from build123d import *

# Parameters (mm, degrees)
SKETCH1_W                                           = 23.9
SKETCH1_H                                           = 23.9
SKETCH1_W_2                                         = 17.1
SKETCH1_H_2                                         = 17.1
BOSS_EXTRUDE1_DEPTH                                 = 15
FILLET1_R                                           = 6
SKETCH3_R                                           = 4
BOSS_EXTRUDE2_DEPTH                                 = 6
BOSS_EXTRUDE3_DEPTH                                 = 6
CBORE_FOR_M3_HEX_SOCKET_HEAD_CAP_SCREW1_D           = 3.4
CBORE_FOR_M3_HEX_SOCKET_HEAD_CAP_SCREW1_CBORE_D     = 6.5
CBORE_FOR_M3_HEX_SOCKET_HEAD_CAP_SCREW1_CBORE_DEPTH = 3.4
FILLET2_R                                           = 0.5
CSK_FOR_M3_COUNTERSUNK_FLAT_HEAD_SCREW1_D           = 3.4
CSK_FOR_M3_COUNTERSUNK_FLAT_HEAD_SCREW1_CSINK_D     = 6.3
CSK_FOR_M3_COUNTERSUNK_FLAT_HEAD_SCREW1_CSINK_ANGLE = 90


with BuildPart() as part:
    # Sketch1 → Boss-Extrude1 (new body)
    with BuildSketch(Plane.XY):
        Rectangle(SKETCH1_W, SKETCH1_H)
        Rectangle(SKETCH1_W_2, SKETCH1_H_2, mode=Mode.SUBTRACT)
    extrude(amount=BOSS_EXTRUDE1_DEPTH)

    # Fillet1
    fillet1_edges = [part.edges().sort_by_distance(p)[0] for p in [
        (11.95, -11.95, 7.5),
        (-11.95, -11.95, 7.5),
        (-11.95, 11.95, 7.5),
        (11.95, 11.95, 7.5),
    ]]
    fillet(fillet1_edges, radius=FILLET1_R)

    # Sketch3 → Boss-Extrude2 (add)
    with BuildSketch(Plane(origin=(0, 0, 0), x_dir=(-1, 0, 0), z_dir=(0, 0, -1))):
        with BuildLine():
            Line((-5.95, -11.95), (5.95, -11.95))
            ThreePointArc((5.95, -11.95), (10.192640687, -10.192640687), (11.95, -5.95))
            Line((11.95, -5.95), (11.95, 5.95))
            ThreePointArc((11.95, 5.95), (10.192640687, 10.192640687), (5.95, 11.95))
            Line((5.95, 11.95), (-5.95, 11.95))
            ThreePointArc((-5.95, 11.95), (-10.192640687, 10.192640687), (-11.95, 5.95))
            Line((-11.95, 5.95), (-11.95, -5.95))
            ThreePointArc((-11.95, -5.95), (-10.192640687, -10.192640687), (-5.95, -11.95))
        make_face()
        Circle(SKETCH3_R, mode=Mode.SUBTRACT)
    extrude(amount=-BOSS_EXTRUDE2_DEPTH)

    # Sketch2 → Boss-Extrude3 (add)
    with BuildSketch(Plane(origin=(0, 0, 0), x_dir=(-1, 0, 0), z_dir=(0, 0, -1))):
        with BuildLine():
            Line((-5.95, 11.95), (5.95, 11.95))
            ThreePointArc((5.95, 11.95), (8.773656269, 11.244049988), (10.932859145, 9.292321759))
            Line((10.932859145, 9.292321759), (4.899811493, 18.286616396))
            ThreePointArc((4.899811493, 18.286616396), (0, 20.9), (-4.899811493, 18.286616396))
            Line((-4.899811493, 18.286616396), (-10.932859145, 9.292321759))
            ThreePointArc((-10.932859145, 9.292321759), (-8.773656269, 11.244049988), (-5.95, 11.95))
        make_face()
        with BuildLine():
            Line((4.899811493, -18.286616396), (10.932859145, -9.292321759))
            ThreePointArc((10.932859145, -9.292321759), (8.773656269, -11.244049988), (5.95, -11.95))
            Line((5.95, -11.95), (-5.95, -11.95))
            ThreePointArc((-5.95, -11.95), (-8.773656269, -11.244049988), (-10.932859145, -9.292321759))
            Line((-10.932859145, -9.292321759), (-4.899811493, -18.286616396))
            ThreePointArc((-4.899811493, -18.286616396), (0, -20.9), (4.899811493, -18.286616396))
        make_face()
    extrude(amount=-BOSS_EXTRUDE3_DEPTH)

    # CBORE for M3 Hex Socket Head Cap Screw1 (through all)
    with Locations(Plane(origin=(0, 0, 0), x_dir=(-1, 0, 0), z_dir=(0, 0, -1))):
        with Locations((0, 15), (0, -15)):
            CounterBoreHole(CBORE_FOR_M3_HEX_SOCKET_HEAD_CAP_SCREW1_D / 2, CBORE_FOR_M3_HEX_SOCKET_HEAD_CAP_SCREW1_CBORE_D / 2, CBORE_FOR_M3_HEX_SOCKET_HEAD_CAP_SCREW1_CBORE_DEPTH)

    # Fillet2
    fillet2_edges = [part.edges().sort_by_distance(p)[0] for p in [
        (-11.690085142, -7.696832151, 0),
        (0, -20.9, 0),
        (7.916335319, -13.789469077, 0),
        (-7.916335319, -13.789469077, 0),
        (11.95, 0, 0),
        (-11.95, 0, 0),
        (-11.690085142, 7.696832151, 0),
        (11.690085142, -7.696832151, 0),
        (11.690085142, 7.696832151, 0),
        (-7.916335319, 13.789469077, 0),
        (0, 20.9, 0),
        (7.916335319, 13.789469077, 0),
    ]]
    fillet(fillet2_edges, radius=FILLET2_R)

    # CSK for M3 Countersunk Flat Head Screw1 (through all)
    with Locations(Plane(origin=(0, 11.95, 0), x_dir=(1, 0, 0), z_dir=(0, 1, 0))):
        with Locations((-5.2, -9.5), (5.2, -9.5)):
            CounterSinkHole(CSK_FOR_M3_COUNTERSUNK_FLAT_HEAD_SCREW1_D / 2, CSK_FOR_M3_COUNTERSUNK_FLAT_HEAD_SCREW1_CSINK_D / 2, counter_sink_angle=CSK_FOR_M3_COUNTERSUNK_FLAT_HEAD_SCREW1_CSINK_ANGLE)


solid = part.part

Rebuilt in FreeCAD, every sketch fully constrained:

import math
import FreeCAD as App
import Part
import Sketcher
from FreeCAD import Vector


def edges_at(feature, points):
    """Names of the edges that pass closest to the given points."""
    edges = feature.Shape.Edges
    near = lambda p: min(range(len(edges)), key=lambda i: edges[i].distToShape(Part.Vertex(*p))[0])
    return sorted({f"Edge{near(p) + 1}" for p in points})

doc = App.newDocument("Part")
body = doc.addObject("PartDesign::Body", "Body")

# Sketch on XY plane
sketch1 = body.newObject("Sketcher::SketchObject", "Sketch")
sketch1.AttachmentSupport = (doc.getObject("XY_Plane"), [""])
sketch1.MapMode = "FlatFace"
sketch1.addGeometry(Part.LineSegment(Vector(-12, 12, 0), Vector(-12, -12, 0)), False)
sketch1.addGeometry(Part.LineSegment(Vector(-12, -12, 0), Vector(12, -12, 0)), False)
sketch1.addGeometry(Part.LineSegment(Vector(12, -12, 0), Vector(12, 12, 0)), False)
sketch1.addGeometry(Part.LineSegment(Vector(12, 12, 0), Vector(-12, 12, 0)), False)
sketch1.addGeometry(Part.LineSegment(Vector(9, -9, 0), Vector(-9, -9, 0)), False)
sketch1.addGeometry(Part.LineSegment(Vector(-9, -9, 0), Vector(-9, 9, 0)), False)
sketch1.addGeometry(Part.LineSegment(Vector(-9, 9, 0), Vector(9, 9, 0)), False)
sketch1.addGeometry(Part.LineSegment(Vector(9, 9, 0), Vector(9, -9, 0)), False)
sketch1.addConstraint(Sketcher.Constraint("Coincident", 0, 2, 1, 1))
sketch1.addConstraint(Sketcher.Constraint("Coincident", 1, 2, 2, 1))
sketch1.addConstraint(Sketcher.Constraint("Coincident", 2, 2, 3, 1))
sketch1.addConstraint(Sketcher.Constraint("Coincident", 3, 2, 0, 1))
sketch1.addConstraint(Sketcher.Constraint("Coincident", 4, 2, 5, 1))
sketch1.addConstraint(Sketcher.Constraint("Coincident", 5, 2, 6, 1))
sketch1.addConstraint(Sketcher.Constraint("Coincident", 6, 2, 7, 1))
sketch1.addConstraint(Sketcher.Constraint("Coincident", 7, 2, 4, 1))
sketch1.addConstraint(Sketcher.Constraint("Vertical", 0))
sketch1.addConstraint(Sketcher.Constraint("Horizontal", 1))
sketch1.addConstraint(Sketcher.Constraint("Vertical", 2))
sketch1.addConstraint(Sketcher.Constraint("Horizontal", 3))
sketch1.addConstraint(Sketcher.Constraint("Horizontal", 4))
sketch1.addConstraint(Sketcher.Constraint("Vertical", 5))
sketch1.addConstraint(Sketcher.Constraint("Horizontal", 6))
sketch1.addConstraint(Sketcher.Constraint("Vertical", 7))
sketch1.addConstraint(Sketcher.Constraint("Symmetric", 0, 2, 2, 2, -1, 1))
sketch1.addConstraint(Sketcher.Constraint("Symmetric", 4, 2, 6, 2, -1, 1))
sketch1.addConstraint(Sketcher.Constraint("Equal", 3, 0))
sketch1.addConstraint(Sketcher.Constraint("Equal", 6, 5))
sketch1.addConstraint(Sketcher.Constraint("DistanceX", 1, 1, 1, 2, 23.9))
sketch1.addConstraint(Sketcher.Constraint("DistanceX", 4, 2, 4, 1, 17.1))
pad1 = body.newObject("PartDesign::Pad", "Pad")
pad1.Profile = sketch1
pad1.Length = 15
doc.recompute()

fillet = body.newObject("PartDesign::Fillet", "Fillet")
fillet.Base = (pad1, edges_at(pad1, [
    (11.95, -11.95, 7.5),
    (-11.95, -11.95, 7.5),
    (-11.95, 11.95, 7.5),
    (11.95, 11.95, 7.5),
]))
fillet.Radius = 6

# Sketch on XY plane
sketch2 = body.newObject("Sketcher::SketchObject", "Sketch001")
sketch2.AttachmentSupport = (doc.getObject("XY_Plane"), [""])
sketch2.MapMode = "FlatFace"
sketch2.addGeometry(Part.LineSegment(Vector(6, -11.9, 0), Vector(-6, -11.9, 0)), False)
sketch2.addGeometry(Part.ArcOfCircle(Part.Circle(Vector(-6, -6, 0), Vector(0, 0, 1), 6), math.radians(180), math.radians(270)), False)
sketch2.addGeometry(Part.LineSegment(Vector(-11.9, -6, 0), Vector(-11.9, 6, 0)), False)
sketch2.addGeometry(Part.ArcOfCircle(Part.Circle(Vector(-6, 6, 0), Vector(0, 0, 1), 6), math.radians(90), math.radians(180)), False)
sketch2.addGeometry(Part.LineSegment(Vector(-6, 11.9, 0), Vector(6, 11.9, 0)), False)
sketch2.addGeometry(Part.ArcOfCircle(Part.Circle(Vector(6, 6, 0), Vector(0, 0, 1), 6), math.radians(0), math.radians(90)), False)
sketch2.addGeometry(Part.LineSegment(Vector(11.9, 6, 0), Vector(11.9, -6, 0)), False)
sketch2.addGeometry(Part.ArcOfCircle(Part.Circle(Vector(6, -6, 0), Vector(0, 0, 1), 6), math.radians(-90), math.radians(0)), False)
sketch2.addGeometry(Part.Circle(Vector(0, 0, 0), Vector(0, 0, 1), 4), False)
sketch2.addConstraint(Sketcher.Constraint("Tangent", 0, 2, 1, 2))
sketch2.addConstraint(Sketcher.Constraint("Tangent", 1, 1, 2, 1))
sketch2.addConstraint(Sketcher.Constraint("Tangent", 2, 2, 3, 2))
sketch2.addConstraint(Sketcher.Constraint("Tangent", 3, 1, 4, 1))
sketch2.addConstraint(Sketcher.Constraint("Tangent", 4, 2, 5, 2))
sketch2.addConstraint(Sketcher.Constraint("Tangent", 5, 1, 6, 1))
sketch2.addConstraint(Sketcher.Constraint("Tangent", 6, 2, 7, 2))
sketch2.addConstraint(Sketcher.Constraint("Tangent", 7, 1, 0, 1))
sketch2.addConstraint(Sketcher.Constraint("Horizontal", 0))
sketch2.addConstraint(Sketcher.Constraint("Vertical", 2))
sketch2.addConstraint(Sketcher.Constraint("Horizontal", 4))
sketch2.addConstraint(Sketcher.Constraint("Vertical", 6))
sketch2.addConstraint(Sketcher.Constraint("Coincident", 8, 3, -1, 1))
sketch2.addConstraint(Sketcher.Constraint("Equal", 1, 3))
sketch2.addConstraint(Sketcher.Constraint("Equal", 3, 5))
sketch2.addConstraint(Sketcher.Constraint("Equal", 5, 7))
sketch2.addConstraint(Sketcher.Constraint("Symmetric", 1, 3, 5, 3, -1, 1))
sketch2.addConstraint(Sketcher.Constraint("Equal", 4, 2))
sketch2.addConstraint(Sketcher.Constraint("Diameter", 8, 8.0))
sketch2.addConstraint(Sketcher.Constraint("Radius", 1, 6.0))
sketch2.addConstraint(Sketcher.Constraint("DistanceX", 0, 2, 0, 1, 11.9))
pad2 = body.newObject("PartDesign::Pad", "Pad001")
pad2.Profile = sketch2
pad2.Length = 6

# Sketch on XY plane
sketch3 = body.newObject("Sketcher::SketchObject", "Sketch002")
sketch3.AttachmentSupport = (doc.getObject("XY_Plane"), [""])
sketch3.MapMode = "FlatFace"
sketch3.addGeometry(Part.LineSegment(Vector(6, 12, 0), Vector(-6, 12, 0)), False)
sketch3.addGeometry(Part.ArcOfCircle(Part.Circle(Vector(-6, 6, 0), Vector(0, 0, 1), 6), math.radians(90), math.radians(146)), False)
sketch3.addGeometry(Part.LineSegment(Vector(-11, 9, 0), Vector(-5, 18, 0)), False)
sketch3.addGeometry(Part.ArcOfCircle(Part.Circle(Vector(0, 15, 0), Vector(0, 0, 1), 6), math.radians(34), math.radians(146)), False)
sketch3.addGeometry(Part.LineSegment(Vector(5, 18, 0), Vector(11, 9, 0)), False)
sketch3.addGeometry(Part.ArcOfCircle(Part.Circle(Vector(6, 6, 0), Vector(0, 0, 1), 6), math.radians(34), math.radians(90)), False)
sketch3.addGeometry(Part.LineSegment(Vector(-5, -18, 0), Vector(-11, -9, 0)), False)
sketch3.addGeometry(Part.ArcOfCircle(Part.Circle(Vector(-6, -6, 0), Vector(0, 0, 1), 6), math.radians(-146), math.radians(-90)), False)
sketch3.addGeometry(Part.LineSegment(Vector(-6, -12, 0), Vector(6, -12, 0)), False)
sketch3.addGeometry(Part.ArcOfCircle(Part.Circle(Vector(6, -6, 0), Vector(0, 0, 1), 6), math.radians(-90), math.radians(-34)), False)
sketch3.addGeometry(Part.LineSegment(Vector(11, -9, 0), Vector(5, -18, 0)), False)
sketch3.addGeometry(Part.ArcOfCircle(Part.Circle(Vector(0, -15, 0), Vector(0, 0, 1), 6), math.radians(-146), math.radians(-34)), False)
sketch3.addConstraint(Sketcher.Constraint("Tangent", 0, 2, 1, 1))
sketch3.addConstraint(Sketcher.Constraint("Tangent", 1, 2, 2, 1))
sketch3.addConstraint(Sketcher.Constraint("Tangent", 2, 2, 3, 2))
sketch3.addConstraint(Sketcher.Constraint("Tangent", 3, 1, 4, 1))
sketch3.addConstraint(Sketcher.Constraint("Tangent", 4, 2, 5, 1))
sketch3.addConstraint(Sketcher.Constraint("Tangent", 5, 2, 0, 1))
sketch3.addConstraint(Sketcher.Constraint("Tangent", 6, 2, 7, 1))
sketch3.addConstraint(Sketcher.Constraint("Tangent", 7, 2, 8, 1))
sketch3.addConstraint(Sketcher.Constraint("Tangent", 8, 2, 9, 1))
sketch3.addConstraint(Sketcher.Constraint("Tangent", 9, 2, 10, 1))
sketch3.addConstraint(Sketcher.Constraint("Tangent", 10, 2, 11, 2))
sketch3.addConstraint(Sketcher.Constraint("Tangent", 11, 1, 6, 1))
sketch3.addConstraint(Sketcher.Constraint("Horizontal", 0))
sketch3.addConstraint(Sketcher.Constraint("Horizontal", 8))
sketch3.addConstraint(Sketcher.Constraint("Equal", 1, 5))
sketch3.addConstraint(Sketcher.Constraint("Equal", 5, 7))
sketch3.addConstraint(Sketcher.Constraint("Equal", 7, 9))
sketch3.addConstraint(Sketcher.Constraint("Equal", 3, 11))
sketch3.addConstraint(Sketcher.Constraint("Symmetric", 5, 3, 7, 3, -1, 1))
sketch3.addConstraint(Sketcher.Constraint("Symmetric", 3, 3, 11, 3, -1, 1))
sketch3.addConstraint(Sketcher.Constraint("Symmetric", 2, 2, 3, 1, -2))
sketch3.addConstraint(Sketcher.Constraint("Parallel", 2, 10))
sketch3.addConstraint(Sketcher.Constraint("Radius", 1, 6.0))
sketch3.addConstraint(Sketcher.Constraint("Radius", 3, 5.9))
sketch3.addConstraint(Sketcher.Constraint("DistanceX", 0, 2, 0, 1, 11.9))
sketch3.addConstraint(Sketcher.Constraint("DistanceY", -1, 1, 3, 3, 15.0))
sketch3.addConstraint(Sketcher.Constraint("DistanceY", 7, 3, 1, 3, 11.9))
pad3 = body.newObject("PartDesign::Pad", "Pad002")
pad3.Profile = sketch3
pad3.Length = 6

# Sketch on XY plane
sketch4 = body.newObject("Sketcher::SketchObject", "Sketch003")
sketch4.AttachmentSupport = (doc.getObject("XY_Plane"), [""])
sketch4.MapMode = "FlatFace"
sketch4.addGeometry(Part.Circle(Vector(0, 15, 0), Vector(0, 0, 1), 1.7), False)
sketch4.addGeometry(Part.Circle(Vector(0, -15, 0), Vector(0, 0, 1), 1.7), False)
sketch4.addConstraint(Sketcher.Constraint("Equal", 0, 1))
sketch4.addConstraint(Sketcher.Constraint("Symmetric", 0, 3, 1, 3, -1, 1))
sketch4.addConstraint(Sketcher.Constraint("PointOnObject", 0, 3, -2))
sketch4.addConstraint(Sketcher.Constraint("Diameter", 0, 3.4))
sketch4.addConstraint(Sketcher.Constraint("DistanceY", -1, 1, 0, 3, 15.0))
doc.recompute()
hole = body.newObject("PartDesign::Hole", "Hole")
hole.Profile = sketch4
hole.ThreadType = "None"
hole.Diameter = 3.4
hole.DepthType = "ThroughAll"
hole.HoleCutType = "Counterbore"
hole.HoleCutDiameter = 6.5
hole.HoleCutDepth = 3.4
hole.Reversed = True
doc.recompute()

fillet2 = body.newObject("PartDesign::Fillet", "Fillet001")
fillet2.Base = (hole, edges_at(hole, [
    (-11.69, -7.697, 0),
    (0, -20.9, 0),
    (7.916, -13.789, 0),
    (-7.916, -13.789, 0),
    (11.95, 0, 0),
    (-11.95, 0, 0),
    (-11.69, 7.697, 0),
    (11.69, -7.697, 0),
    (11.69, 7.697, 0),
    (-7.916, 13.789, 0),
    (0, 20.9, 0),
    (7.916, 13.789, 0),
]))
fillet2.Radius = 0.5

# Sketch on XZ plane
sketch5 = body.newObject("Sketcher::SketchObject", "Sketch004")
sketch5.AttachmentSupport = (doc.getObject("XZ_Plane"), [""])
sketch5.MapMode = "FlatFace"
sketch5.AttachmentOffset = App.Placement(Vector(0, 0, -11.95), App.Rotation())
sketch5.addGeometry(Part.Circle(Vector(-5.2, 9.5, 0), Vector(0, 0, 1), 1.7), False)
sketch5.addGeometry(Part.Circle(Vector(5.2, 9.5, 0), Vector(0, 0, 1), 1.7), False)
sketch5.addConstraint(Sketcher.Constraint("Equal", 0, 1))
sketch5.addConstraint(Sketcher.Constraint("Symmetric", 0, 3, 1, 3, -2))
sketch5.addConstraint(Sketcher.Constraint("Diameter", 0, 3.4))
sketch5.addConstraint(Sketcher.Constraint("DistanceX", 0, 3, -1, 1, 5.2))
sketch5.addConstraint(Sketcher.Constraint("DistanceY", -1, 1, 0, 3, 9.5))
doc.recompute()
hole2 = body.newObject("PartDesign::Hole", "Hole001")
hole2.Profile = sketch5
hole2.ThreadType = "None"
hole2.Diameter = 3.4
hole2.DepthType = "ThroughAll"
hole2.HoleCutType = "Countersink"
hole2.HoleCutDiameter = 6.3
hole2.HoleCutCountersinkAngle = 90
hole2.Reversed = True

doc.recompute()
